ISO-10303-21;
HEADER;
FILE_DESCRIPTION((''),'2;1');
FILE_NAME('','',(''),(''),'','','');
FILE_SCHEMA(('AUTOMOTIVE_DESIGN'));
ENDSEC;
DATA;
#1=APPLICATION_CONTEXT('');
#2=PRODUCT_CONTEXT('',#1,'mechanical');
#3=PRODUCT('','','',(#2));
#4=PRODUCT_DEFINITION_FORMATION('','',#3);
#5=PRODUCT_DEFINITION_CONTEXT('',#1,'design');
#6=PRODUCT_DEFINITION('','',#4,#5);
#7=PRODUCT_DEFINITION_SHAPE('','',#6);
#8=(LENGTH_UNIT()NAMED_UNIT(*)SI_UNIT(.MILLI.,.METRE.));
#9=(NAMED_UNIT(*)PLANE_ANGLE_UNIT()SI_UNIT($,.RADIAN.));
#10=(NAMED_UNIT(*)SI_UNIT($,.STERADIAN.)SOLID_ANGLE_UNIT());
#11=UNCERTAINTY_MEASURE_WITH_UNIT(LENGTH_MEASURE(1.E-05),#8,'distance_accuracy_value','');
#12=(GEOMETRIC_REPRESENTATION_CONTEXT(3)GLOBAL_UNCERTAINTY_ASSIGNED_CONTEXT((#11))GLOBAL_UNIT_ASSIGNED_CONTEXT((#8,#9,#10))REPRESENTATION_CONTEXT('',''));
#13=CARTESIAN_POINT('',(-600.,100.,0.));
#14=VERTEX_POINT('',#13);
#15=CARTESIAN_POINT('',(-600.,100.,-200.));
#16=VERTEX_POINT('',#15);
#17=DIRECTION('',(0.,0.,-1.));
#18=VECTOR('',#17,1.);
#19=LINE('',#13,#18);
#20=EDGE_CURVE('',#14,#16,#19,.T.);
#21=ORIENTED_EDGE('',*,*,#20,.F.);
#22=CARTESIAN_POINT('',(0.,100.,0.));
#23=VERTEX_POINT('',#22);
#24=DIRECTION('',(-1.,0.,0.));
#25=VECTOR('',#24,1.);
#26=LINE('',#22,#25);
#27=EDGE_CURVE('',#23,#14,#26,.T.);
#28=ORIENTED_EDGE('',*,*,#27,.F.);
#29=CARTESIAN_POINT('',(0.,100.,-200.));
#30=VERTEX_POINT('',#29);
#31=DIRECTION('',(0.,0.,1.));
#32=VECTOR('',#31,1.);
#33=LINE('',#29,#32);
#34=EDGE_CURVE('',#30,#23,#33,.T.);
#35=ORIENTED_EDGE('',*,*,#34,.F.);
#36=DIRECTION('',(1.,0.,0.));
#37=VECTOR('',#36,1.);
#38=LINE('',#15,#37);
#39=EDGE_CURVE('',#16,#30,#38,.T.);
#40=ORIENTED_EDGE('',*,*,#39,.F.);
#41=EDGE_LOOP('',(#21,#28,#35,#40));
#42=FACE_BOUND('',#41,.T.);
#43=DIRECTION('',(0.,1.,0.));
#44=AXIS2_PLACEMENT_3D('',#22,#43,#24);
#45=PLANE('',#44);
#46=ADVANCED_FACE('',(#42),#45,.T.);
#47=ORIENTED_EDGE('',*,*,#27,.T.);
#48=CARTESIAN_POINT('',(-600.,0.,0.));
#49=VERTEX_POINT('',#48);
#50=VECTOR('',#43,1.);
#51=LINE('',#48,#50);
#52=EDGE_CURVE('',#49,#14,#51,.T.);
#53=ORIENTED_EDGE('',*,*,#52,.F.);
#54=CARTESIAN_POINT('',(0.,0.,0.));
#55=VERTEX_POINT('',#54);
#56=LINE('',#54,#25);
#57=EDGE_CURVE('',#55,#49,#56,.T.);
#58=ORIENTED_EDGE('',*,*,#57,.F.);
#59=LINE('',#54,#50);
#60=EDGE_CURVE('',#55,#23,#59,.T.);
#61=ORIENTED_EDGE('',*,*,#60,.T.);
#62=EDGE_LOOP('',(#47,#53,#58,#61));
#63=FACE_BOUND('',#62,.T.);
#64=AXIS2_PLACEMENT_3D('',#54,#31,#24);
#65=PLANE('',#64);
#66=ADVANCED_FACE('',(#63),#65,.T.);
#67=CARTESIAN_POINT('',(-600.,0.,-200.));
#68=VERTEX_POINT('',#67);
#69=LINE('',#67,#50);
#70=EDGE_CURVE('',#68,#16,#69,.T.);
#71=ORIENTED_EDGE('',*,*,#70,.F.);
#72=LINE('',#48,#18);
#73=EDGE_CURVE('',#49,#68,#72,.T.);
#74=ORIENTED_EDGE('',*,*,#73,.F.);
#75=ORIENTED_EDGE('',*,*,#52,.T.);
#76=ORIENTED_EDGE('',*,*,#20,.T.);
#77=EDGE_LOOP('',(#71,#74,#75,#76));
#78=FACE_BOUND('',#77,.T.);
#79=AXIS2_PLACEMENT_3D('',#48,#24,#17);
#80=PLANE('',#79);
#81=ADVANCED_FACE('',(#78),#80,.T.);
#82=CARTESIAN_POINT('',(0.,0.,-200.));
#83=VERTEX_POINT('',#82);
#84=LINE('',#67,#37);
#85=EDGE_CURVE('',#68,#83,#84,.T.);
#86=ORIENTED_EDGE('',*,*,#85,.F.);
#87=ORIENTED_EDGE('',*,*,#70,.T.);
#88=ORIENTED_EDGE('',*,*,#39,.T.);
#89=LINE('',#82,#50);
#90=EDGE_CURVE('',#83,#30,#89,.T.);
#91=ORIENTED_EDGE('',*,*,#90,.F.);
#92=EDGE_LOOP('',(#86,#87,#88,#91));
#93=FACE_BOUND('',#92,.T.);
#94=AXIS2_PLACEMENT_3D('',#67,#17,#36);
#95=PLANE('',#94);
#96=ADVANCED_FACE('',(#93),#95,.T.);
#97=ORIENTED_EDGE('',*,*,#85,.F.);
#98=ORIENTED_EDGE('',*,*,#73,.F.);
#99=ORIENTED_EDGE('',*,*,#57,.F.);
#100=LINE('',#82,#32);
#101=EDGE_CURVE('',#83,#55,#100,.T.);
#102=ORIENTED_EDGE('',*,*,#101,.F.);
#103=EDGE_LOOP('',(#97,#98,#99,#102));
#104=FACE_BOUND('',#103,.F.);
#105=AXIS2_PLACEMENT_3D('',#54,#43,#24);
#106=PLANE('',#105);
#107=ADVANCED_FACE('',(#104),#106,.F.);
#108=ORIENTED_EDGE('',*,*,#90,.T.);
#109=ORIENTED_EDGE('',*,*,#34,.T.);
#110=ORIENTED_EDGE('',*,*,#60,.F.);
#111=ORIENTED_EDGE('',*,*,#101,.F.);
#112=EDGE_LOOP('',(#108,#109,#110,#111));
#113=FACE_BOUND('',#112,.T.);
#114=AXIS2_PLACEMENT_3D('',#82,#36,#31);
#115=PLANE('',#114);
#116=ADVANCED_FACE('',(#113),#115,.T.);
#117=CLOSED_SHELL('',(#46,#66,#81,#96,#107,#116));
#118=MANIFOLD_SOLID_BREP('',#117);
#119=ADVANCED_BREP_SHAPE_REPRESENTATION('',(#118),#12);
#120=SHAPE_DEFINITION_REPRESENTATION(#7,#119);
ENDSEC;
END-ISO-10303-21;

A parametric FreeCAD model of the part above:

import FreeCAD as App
import Part
import Sketcher
Q = App.Units.Quantity

doc = App.newDocument("Part")
params = doc.addObject("Spreadsheet::Sheet", "Params")
for row, (alias, value) in enumerate([
    ("sketch1_width", "600 mm"),
    ("sketch1_height", "200 mm"),
    ("pad1_length", "100 mm"),
], start=1):
    params.set(f"A{row}", alias)
    params.set(f"B{row}", "=" + value)
    params.setAlias(f"B{row}", alias)

body = doc.addObject("PartDesign::Body", "Body")

# Sketch on XZ plane
sketch1 = doc.addObject("Sketcher::SketchObject", "Sketch")
body.addObject(sketch1)
sketch1.AttachmentSupport = (doc.XZ_Plane, [""])
sketch1.MapMode = "FlatFace"
sketch1.addGeometry([
    Part.LineSegment(App.Vector(-600, 0, 0), App.Vector(0, 0, 0)),
    Part.LineSegment(App.Vector(0, 0, 0), App.Vector(0, -200, 0)),
    Part.LineSegment(App.Vector(0, -200, 0), App.Vector(-600, -200, 0)),
    Part.LineSegment(App.Vector(-600, -200, 0), App.Vector(-600, 0, 0)),
], False)
sketch1.addConstraint([
    Sketcher.Constraint("Coincident", 0, 2, 1, 1),
    Sketcher.Constraint("Coincident", 1, 2, 2, 1),
    Sketcher.Constraint("Coincident", 2, 2, 3, 1),
    Sketcher.Constraint("Coincident", 3, 2, 0, 1),
    Sketcher.Constraint("Horizontal", 0),
    Sketcher.Constraint("Vertical", 1),
    Sketcher.Constraint("Horizontal", 2),
    Sketcher.Constraint("Vertical", 3),
    Sketcher.Constraint("Coincident", 0, 2, -1, 1),
    Sketcher.Constraint("DistanceX", 0, 1, 0, 2, Q("600 mm")),
    Sketcher.Constraint("DistanceY", 1, 2, 1, 1, Q("200 mm")),
])
sketch1.setExpression("Constraints[9]", "Params.sketch1_width")
sketch1.setExpression("Constraints[10]", "Params.sketch1_height")
pad1 = doc.addObject("PartDesign::Pad", "Pad")
body.addObject(pad1)
pad1.Profile = sketch1
pad1.setExpression("Length", "Params.pad1_length")
pad1.Reversed = True

doc.recompute()
